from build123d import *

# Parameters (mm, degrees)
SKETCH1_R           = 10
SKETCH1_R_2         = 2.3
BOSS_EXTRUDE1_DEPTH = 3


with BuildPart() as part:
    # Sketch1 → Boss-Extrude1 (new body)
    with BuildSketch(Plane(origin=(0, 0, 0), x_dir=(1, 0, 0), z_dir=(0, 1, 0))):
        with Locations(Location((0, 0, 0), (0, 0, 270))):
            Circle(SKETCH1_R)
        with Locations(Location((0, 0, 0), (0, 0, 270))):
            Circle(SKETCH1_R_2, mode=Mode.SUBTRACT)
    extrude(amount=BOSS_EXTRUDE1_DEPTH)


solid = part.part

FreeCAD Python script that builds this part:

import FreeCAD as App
import Part
import Sketcher

doc = App.newDocument("Part")
params = doc.addObject("Spreadsheet::Sheet", "Params")
for row, (alias, value) in enumerate([
    ("sketch1_diameter", "20 mm"),
    ("sketch1_diameter2", "4.6 mm"),
    ("pad1_length", "3 mm"),
], start=1):
    params.set(f"A{row}", alias)
    params.set(f"B{row}", "=" + value)
    params.setAlias(f"B{row}", alias)

body = doc.addObject("PartDesign::Body", "Body")

# Sketch on XZ plane
sketch1 = body.newObject("Sketcher::SketchObject", "Sketch")
sketch1.AttachmentSupport = (doc.getObject("XZ_Plane"), [""])
sketch1.MapMode = "FlatFace"
sketch1.addGeometry([
    Part.Circle(App.Vector(0, 0, 0), App.Vector(0, 0, 1), 10),
    Part.Circle(App.Vector(0, 0, 0), App.Vector(0, 0, 1), 2.3),
], False)
sketch1.addConstraint([
    Sketcher.Constraint("Coincident", 0, 3, -1, 1),
    Sketcher.Constraint("Coincident", 1, 3, -1, 1),
    Sketcher.Constraint("Diameter", 0, 20.0),
    Sketcher.Constraint("Diameter", 1, 4.6),
])
sketch1.setExpression("Constraints[2]", "Params.sketch1_diameter")
sketch1.setExpression("Constraints[3]", "Params.sketch1_diameter2")
pad1 = body.newObject("PartDesign::Pad", "Pad")
pad1.Profile = sketch1
pad1.setExpression("Length", "Params.pad1_length")
pad1.Reversed = True

doc.recompute()
